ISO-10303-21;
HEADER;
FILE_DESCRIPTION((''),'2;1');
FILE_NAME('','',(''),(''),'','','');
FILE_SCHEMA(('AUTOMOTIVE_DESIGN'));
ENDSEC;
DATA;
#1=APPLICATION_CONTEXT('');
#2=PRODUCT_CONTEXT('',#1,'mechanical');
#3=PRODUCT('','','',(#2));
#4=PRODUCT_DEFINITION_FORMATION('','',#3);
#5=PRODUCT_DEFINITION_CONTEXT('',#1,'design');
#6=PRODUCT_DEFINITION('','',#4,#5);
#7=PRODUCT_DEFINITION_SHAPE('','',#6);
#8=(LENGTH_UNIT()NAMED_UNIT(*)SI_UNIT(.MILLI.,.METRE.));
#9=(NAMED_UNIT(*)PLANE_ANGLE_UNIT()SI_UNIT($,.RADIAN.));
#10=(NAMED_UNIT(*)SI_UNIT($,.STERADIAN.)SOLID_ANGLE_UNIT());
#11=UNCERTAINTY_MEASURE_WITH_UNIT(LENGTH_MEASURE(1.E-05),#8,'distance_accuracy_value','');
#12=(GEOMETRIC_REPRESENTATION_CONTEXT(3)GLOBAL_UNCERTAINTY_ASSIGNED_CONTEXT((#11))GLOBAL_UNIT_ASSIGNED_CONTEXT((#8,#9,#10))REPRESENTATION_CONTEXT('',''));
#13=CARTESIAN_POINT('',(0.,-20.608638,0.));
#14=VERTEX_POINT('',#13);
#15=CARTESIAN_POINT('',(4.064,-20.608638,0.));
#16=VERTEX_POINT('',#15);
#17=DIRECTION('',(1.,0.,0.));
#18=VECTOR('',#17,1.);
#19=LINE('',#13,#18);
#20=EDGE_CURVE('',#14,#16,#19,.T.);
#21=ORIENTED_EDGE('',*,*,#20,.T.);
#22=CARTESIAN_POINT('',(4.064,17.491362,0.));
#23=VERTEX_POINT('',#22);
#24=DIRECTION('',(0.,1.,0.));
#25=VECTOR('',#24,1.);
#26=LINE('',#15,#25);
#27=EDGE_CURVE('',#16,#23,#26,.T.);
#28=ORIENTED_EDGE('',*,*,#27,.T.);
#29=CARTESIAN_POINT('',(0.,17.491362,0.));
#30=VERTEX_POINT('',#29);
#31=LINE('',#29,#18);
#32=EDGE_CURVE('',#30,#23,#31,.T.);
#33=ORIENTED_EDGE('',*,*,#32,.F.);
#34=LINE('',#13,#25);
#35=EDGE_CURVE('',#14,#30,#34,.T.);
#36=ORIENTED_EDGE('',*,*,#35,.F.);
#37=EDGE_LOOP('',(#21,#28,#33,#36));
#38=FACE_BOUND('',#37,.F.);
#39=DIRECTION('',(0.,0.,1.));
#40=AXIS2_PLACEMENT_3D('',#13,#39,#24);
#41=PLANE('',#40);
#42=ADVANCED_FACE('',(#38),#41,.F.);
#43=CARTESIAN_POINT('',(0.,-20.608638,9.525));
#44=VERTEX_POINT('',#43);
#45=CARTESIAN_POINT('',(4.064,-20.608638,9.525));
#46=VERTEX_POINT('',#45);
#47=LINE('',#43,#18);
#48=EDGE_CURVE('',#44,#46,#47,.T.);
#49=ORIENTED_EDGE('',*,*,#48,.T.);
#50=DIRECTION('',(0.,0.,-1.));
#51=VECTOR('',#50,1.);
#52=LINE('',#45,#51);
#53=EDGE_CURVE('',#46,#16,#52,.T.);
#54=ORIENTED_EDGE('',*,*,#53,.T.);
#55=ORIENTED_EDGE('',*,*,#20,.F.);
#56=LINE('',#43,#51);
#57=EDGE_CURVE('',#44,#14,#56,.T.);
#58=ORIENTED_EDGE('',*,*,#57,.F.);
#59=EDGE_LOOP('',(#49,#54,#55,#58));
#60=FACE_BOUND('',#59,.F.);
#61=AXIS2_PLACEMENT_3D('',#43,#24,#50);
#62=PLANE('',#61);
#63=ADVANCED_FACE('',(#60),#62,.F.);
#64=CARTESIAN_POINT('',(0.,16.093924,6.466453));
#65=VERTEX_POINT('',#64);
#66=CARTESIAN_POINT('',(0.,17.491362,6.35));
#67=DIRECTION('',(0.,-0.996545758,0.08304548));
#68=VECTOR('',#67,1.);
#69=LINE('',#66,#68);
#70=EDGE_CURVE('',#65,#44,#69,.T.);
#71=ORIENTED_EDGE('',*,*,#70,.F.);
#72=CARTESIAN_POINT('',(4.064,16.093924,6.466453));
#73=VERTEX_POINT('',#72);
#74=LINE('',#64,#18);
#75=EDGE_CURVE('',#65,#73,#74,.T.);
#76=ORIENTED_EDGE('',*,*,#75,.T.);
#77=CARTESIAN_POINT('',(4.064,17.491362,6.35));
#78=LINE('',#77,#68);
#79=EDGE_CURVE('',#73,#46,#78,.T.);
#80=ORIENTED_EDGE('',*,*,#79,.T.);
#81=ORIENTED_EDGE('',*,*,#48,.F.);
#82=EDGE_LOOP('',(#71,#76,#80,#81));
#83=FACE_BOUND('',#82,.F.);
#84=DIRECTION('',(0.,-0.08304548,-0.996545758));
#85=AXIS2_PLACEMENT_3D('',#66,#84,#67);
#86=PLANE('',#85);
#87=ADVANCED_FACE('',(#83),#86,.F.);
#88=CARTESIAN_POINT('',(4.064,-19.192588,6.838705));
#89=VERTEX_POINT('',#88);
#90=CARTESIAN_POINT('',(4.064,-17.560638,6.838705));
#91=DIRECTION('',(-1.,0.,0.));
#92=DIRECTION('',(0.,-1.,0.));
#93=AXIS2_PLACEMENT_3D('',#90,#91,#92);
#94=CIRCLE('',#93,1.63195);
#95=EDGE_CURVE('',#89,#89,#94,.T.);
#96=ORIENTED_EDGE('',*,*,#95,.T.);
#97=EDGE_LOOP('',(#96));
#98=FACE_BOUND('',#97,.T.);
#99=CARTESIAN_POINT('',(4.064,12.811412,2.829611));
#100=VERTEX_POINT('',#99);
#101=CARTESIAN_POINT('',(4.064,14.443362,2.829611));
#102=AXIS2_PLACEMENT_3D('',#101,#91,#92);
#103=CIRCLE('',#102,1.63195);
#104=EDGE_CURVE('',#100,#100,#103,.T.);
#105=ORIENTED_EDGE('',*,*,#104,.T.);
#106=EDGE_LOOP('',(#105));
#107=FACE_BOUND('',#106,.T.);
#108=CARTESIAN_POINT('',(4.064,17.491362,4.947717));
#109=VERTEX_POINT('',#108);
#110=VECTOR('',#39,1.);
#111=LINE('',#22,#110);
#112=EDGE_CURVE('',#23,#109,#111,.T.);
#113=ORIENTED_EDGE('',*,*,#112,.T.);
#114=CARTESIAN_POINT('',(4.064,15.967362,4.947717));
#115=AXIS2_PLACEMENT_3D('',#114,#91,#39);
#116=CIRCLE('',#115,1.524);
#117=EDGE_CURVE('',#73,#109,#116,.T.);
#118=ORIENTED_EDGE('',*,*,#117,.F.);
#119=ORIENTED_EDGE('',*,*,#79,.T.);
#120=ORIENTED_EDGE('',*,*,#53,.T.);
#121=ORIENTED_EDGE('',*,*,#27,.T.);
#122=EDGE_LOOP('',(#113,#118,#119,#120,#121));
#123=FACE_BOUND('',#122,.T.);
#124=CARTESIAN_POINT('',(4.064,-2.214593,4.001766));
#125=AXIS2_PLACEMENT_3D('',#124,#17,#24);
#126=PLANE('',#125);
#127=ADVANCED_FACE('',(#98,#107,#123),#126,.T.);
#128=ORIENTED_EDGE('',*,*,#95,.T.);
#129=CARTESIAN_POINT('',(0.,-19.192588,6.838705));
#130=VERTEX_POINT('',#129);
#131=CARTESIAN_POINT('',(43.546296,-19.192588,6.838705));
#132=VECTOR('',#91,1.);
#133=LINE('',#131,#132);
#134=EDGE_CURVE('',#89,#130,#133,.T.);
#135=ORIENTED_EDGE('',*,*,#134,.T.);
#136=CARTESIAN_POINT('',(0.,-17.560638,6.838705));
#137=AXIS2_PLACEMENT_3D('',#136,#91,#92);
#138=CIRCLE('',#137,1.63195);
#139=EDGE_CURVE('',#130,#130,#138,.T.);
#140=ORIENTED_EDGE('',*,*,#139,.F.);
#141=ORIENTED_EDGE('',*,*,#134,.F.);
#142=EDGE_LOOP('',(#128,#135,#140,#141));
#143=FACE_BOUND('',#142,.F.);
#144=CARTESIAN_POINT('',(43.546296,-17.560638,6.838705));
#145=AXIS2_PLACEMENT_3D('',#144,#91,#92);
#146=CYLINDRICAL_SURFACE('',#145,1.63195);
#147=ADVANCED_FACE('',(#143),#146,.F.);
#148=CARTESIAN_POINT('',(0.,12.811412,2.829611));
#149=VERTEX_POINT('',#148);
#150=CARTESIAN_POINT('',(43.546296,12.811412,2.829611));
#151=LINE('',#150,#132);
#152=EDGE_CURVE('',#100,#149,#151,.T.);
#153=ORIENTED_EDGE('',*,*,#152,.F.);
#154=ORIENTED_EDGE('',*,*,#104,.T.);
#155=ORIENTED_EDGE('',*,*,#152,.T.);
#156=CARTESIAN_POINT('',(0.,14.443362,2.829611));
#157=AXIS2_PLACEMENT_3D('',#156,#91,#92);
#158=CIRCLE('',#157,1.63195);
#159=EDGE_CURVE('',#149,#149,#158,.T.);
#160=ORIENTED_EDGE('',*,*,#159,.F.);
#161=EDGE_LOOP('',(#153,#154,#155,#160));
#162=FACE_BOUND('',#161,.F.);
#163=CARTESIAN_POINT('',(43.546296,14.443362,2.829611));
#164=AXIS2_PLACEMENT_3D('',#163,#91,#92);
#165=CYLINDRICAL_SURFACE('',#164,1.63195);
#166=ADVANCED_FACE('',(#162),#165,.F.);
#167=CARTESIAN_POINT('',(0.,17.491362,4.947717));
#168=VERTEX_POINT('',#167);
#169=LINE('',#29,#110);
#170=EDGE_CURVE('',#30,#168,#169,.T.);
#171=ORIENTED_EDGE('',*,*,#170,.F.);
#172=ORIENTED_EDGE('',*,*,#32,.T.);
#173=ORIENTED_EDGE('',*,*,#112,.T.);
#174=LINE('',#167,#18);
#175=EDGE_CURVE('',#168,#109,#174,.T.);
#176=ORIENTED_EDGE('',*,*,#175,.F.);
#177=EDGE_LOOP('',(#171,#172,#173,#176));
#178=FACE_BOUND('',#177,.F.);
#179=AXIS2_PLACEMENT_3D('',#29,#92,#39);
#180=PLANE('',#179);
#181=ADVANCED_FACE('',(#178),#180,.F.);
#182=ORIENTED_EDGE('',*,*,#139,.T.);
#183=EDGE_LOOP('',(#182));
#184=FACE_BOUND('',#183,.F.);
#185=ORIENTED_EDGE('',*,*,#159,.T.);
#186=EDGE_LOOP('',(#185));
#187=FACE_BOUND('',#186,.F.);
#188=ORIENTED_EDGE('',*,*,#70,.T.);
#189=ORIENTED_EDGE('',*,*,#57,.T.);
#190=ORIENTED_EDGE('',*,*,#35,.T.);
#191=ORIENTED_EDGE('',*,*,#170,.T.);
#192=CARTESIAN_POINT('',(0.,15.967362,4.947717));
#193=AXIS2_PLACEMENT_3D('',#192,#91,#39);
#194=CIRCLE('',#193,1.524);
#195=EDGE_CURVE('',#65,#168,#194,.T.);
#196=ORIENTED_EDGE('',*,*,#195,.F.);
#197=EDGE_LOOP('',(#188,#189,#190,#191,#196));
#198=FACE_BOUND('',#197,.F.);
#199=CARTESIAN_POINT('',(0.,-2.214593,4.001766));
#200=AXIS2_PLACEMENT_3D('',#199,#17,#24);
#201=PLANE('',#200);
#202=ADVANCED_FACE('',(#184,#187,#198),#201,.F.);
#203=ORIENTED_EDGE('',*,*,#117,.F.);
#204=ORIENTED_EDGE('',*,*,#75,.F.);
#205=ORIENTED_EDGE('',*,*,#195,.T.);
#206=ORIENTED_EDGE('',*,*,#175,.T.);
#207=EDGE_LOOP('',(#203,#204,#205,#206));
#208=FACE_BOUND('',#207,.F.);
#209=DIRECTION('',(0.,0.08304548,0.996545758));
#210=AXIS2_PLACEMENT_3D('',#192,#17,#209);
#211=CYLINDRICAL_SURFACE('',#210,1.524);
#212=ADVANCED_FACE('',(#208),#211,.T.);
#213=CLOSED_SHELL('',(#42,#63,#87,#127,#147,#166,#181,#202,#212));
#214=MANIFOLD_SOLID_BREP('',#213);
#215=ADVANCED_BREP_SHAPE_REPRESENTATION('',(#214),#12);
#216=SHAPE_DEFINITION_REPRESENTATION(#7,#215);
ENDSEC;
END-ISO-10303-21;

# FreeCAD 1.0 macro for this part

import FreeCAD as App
import Part
import Sketcher
Q = App.Units.Quantity


def edges_at(feature, points):
    """Names of the edges that pass closest to the given points."""
    edges = feature.Shape.Edges
    near = lambda p: min(range(len(edges)), key=lambda i: edges[i].distToShape(Part.Vertex(*p))[0])
    return sorted({f"Edge{near(p) + 1}" for p in points})


def add_polygon(sketch, points):
    """Adds a closed chain of lines whose ends are joined by coincident constraints."""
    first, n = sketch.GeometryCount, len(points)
    for a, b in zip(points, points[1:] + points[:1]):
        sketch.addGeometry(Part.LineSegment(App.Vector(*a, 0), App.Vector(*b, 0)), False)
    for i in range(n):
        sketch.addConstraint(Sketcher.Constraint("Coincident", first + i, 2, first + (i + 1) % n, 1))

doc = App.newDocument("Part")
params = doc.addObject("Spreadsheet::Sheet", "Params")
for row, (alias, value) in enumerate([
    ("sketch1_width", "1.5 in"),
    ("sketch1_height", "0.25 in"),
    ("sketch1_height2", "0.375 in"),
    ("pad1_length", "0.16 in"),
    ("hole_diameter", "0.1285 in"),
    ("fillet_radius", "0.06 in"),
], start=1):
    params.set(f"A{row}", alias)
    params.set(f"B{row}", "=" + value)
    params.setAlias(f"B{row}", alias)

body = doc.addObject("PartDesign::Body", "Body")

sketch1 = body.newObject("Sketcher::SketchObject", "Sketch")
sketch1.AttachmentSupport = (doc.getObject("YZ_Plane"), [""])
sketch1.MapMode = "FlatFace"
add_polygon(sketch1, [(-21, 10), (-21, 0), (17, 0), (17, 6)])
sketch1.addConstraint(Sketcher.Constraint("Vertical", 0))
sketch1.addConstraint(Sketcher.Constraint("Horizontal", 1))
sketch1.addConstraint(Sketcher.Constraint("Vertical", 2))
sketch1.addConstraint(Sketcher.Constraint("PointOnObject", 0, 2, -1))
sketch1.addConstraint(Sketcher.Constraint("DistanceX", 1, 1, 1, 2, Q("1.5 in")))
sketch1.addConstraint(Sketcher.Constraint("DistanceY", 2, 1, 2, 2, Q("0.25 in")))
sketch1.addConstraint(Sketcher.Constraint("DistanceY", 0, 2, 0, 1, Q("0.375 in")))
sketch1.addConstraint(Sketcher.Constraint("DistanceX", 0, 2, -1, 1, Q("20.608638 mm")))
sketch1.setExpression("Constraints[8]", "Params.sketch1_width")
sketch1.setExpression("Constraints[9]", "Params.sketch1_height")
sketch1.setExpression("Constraints[10]", "Params.sketch1_height2")
pad1 = body.newObject("PartDesign::Pad", "Pad")
pad1.Profile = sketch1
pad1.setExpression("Length", "Params.pad1_length")

sketch2 = body.newObject("Sketcher::SketchObject", "Sketch001")
sketch2.AttachmentSupport = (doc.getObject("YZ_Plane"), [""])
sketch2.MapMode = "FlatFace"
sketch2.AttachmentOffset = App.Placement(App.Vector(0, 0, 0.16 * 25.4), App.Rotation())
sketch2.addGeometry(Part.Circle(App.Vector(-17.6, 6.8, 0), App.Vector(0, 0, 1), 1.6), False)
sketch2.addGeometry(Part.Circle(App.Vector(14.4, 2.8, 0), App.Vector(0, 0, 1), 1.6), False)
sketch2.addConstraint(Sketcher.Constraint("Equal", 0, 1))
sketch2.addConstraint(Sketcher.Constraint("Diameter", 0, Q("0.1285 in")))
sketch2.addConstraint(Sketcher.Constraint("DistanceX", 0, 3, 1, 3, Q("1.26 in")))
sketch2.addConstraint(Sketcher.Constraint("DistanceY", -1, 1, 1, 3, Q("2.829611 mm")))
sketch2.addConstraint(Sketcher.Constraint("DistanceX", 0, 3, -1, 1, Q("17.560638 mm")))
sketch2.addConstraint(Sketcher.Constraint("DistanceY", -1, 1, 0, 3, Q("6.838705 mm")))
doc.recompute()
hole = body.newObject("PartDesign::Hole", "Hole")
hole.Profile = sketch2
hole.ThreadType = "None"
hole.setExpression("Diameter", "Params.hole_diameter")
hole.DepthType = "ThroughAll"
doc.recompute()

fillet = body.newObject("PartDesign::Fillet", "Fillet")
fillet.Base = (hole, edges_at(hole, [(2.032, 17.491, 6.35)]))
fillet.setExpression("Radius", "Params.fillet_radius")

doc.recompute()
